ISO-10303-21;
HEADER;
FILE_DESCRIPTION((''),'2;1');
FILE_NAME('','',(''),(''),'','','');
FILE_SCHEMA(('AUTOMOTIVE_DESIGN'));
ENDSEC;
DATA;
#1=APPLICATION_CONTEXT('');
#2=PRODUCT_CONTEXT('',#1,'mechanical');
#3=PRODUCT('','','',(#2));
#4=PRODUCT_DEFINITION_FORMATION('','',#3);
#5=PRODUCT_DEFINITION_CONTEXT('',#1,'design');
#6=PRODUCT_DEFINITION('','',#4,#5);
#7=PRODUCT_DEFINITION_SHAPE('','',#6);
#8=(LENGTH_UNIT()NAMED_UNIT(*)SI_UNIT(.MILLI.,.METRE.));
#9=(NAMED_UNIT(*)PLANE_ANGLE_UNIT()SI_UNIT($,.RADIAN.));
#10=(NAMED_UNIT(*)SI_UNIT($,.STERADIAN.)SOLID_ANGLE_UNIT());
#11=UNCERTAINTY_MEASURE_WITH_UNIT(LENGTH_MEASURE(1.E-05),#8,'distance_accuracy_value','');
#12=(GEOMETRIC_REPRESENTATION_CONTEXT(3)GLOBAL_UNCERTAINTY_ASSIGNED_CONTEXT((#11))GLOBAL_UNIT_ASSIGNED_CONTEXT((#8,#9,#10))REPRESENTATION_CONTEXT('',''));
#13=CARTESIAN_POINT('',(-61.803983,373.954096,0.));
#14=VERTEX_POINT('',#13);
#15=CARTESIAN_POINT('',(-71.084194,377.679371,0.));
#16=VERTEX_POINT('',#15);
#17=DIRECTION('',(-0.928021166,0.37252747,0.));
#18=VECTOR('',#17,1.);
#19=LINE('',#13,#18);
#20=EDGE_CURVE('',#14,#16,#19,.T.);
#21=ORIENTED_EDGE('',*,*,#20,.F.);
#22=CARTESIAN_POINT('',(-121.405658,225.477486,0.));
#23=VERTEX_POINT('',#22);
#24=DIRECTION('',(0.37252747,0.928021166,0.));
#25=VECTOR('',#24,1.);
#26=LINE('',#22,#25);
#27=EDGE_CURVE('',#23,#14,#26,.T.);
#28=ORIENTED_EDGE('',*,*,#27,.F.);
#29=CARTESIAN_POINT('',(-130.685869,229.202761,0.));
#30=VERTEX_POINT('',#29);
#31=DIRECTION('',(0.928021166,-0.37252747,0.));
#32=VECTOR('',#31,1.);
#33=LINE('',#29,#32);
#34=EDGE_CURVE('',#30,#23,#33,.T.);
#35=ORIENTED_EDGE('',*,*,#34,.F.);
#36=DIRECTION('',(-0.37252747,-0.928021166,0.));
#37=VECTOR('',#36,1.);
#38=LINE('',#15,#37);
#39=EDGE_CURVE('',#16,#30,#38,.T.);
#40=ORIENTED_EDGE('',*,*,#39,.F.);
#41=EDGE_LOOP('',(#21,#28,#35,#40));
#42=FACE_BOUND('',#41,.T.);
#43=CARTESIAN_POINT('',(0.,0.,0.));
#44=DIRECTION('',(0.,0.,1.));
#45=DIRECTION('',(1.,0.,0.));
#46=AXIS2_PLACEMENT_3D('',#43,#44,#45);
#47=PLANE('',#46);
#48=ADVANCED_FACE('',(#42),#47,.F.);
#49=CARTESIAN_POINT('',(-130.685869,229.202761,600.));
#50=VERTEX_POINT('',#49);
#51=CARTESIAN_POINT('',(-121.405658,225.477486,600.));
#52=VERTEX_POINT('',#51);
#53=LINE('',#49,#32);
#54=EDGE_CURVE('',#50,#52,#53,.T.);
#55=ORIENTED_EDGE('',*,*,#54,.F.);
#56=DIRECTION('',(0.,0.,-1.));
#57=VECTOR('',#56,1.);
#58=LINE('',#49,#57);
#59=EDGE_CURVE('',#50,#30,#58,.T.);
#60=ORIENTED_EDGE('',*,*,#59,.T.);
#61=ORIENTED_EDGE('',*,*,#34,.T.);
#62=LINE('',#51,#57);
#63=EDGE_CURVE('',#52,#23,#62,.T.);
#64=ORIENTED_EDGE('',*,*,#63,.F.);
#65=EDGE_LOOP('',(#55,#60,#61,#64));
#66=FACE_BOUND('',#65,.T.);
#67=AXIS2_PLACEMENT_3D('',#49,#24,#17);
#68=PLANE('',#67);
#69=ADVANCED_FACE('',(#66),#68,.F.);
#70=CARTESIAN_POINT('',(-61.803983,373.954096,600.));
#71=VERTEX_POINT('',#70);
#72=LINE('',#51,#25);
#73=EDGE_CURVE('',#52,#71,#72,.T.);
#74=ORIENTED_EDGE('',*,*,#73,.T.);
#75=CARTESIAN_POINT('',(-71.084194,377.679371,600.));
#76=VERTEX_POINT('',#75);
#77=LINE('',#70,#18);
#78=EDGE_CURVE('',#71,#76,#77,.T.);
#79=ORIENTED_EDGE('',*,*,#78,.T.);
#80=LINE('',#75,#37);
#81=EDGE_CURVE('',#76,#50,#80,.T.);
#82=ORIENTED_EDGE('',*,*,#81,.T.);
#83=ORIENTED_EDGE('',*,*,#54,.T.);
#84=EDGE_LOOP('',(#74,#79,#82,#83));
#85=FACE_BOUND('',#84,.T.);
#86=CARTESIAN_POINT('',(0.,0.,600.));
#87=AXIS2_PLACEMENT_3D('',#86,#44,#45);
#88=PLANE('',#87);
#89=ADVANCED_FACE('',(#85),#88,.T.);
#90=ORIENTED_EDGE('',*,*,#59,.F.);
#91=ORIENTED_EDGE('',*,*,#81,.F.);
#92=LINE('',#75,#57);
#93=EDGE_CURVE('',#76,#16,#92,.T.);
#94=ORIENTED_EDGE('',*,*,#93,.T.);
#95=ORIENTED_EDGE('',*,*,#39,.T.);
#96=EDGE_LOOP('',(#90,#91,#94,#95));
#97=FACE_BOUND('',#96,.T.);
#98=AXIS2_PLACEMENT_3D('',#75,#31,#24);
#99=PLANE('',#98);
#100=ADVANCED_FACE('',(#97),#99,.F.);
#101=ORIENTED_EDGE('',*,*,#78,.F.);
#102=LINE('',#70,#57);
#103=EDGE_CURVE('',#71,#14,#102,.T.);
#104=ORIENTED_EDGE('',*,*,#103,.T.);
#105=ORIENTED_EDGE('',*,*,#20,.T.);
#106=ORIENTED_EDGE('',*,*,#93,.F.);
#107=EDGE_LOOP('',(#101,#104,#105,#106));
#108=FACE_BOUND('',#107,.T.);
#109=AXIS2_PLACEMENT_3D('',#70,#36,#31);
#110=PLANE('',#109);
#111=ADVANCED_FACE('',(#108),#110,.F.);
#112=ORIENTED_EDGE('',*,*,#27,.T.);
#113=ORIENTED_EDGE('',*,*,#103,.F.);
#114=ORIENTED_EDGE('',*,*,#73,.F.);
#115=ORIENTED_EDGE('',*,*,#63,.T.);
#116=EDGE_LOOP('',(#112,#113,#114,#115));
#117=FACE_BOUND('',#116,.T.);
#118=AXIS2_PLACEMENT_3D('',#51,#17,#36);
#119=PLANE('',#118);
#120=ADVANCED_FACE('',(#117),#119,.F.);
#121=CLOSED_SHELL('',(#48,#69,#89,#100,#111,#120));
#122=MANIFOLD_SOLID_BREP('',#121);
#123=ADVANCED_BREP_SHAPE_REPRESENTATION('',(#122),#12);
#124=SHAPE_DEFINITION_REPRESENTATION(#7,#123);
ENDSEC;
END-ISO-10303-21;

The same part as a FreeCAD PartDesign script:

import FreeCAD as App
import Part
import Sketcher
from FreeCAD import Vector
Q = App.Units.Quantity

doc = App.newDocument("Part")
body = doc.addObject("PartDesign::Body", "Body")

sketch1 = body.newObject("Sketcher::SketchObject", "Sketch")
sketch1.AttachmentSupport = (doc.getObject("XY_Plane"), [""])
sketch1.MapMode = "FlatFace"
sketch1.addGeometry(Part.LineSegment(Vector(-71.084194, 377.679371, 0), Vector(-130.685869, 229.202761, 0)), False)
sketch1.addGeometry(Part.LineSegment(Vector(-130.685869, 229.202761, 0), Vector(-121.405658, 225.477486, 0)), False)
sketch1.addGeometry(Part.LineSegment(Vector(-121.405658, 225.477486, 0), Vector(-61.803983, 373.954096, 0)), False)
sketch1.addGeometry(Part.LineSegment(Vector(-61.803983, 373.954096, 0), Vector(-71.084194, 377.679371, 0)), False)
sketch1.addConstraint(Sketcher.Constraint("Coincident", 0, 2, 1, 1))
sketch1.addConstraint(Sketcher.Constraint("Coincident", 1, 2, 2, 1))
sketch1.addConstraint(Sketcher.Constraint("Coincident", 2, 2, 3, 1))
sketch1.addConstraint(Sketcher.Constraint("Coincident", 3, 2, 0, 1))
sketch1.addConstraint(Sketcher.Constraint("Perpendicular", 0, 1))
sketch1.addConstraint(Sketcher.Constraint("Perpendicular", 1, 2))
sketch1.addConstraint(Sketcher.Constraint("Perpendicular", 2, 3))
sketch1.addConstraint(Sketcher.Constraint("Distance", 1, Q("10 mm")))
sketch1.addConstraint(Sketcher.Constraint("Distance", 0, Q("159.992698 mm")))
sketch1.addConstraint(Sketcher.Constraint("DistanceX", 0, 2, -1, 1, Q("130.685869 mm")))
sketch1.addConstraint(Sketcher.Constraint("DistanceY", -1, 1, 0, 2, Q("229.202761 mm")))
sketch1.addConstraint(Sketcher.Constraint("DistanceY", -1, 1, 3, 2, Q("377.679371 mm")))
pad1 = body.newObject("PartDesign::Pad", "Pad")
pad1.Profile = sketch1
pad1.Length = 600

doc.recompute()
